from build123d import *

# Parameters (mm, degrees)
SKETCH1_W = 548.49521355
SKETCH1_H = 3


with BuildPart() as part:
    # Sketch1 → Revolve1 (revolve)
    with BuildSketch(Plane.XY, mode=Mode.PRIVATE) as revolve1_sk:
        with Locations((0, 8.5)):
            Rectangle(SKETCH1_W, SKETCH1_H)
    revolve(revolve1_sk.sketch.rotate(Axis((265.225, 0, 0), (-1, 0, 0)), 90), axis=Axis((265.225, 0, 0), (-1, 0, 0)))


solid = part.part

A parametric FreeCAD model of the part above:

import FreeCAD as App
import Part
import Sketcher
Q = App.Units.Quantity


def add_polygon(sketch, points):
    """Adds a closed chain of lines whose ends are joined by coincident constraints."""
    first, n = sketch.GeometryCount, len(points)
    for a, b in zip(points, points[1:] + points[:1]):
        sketch.addGeometry(Part.LineSegment(App.Vector(*a, 0), App.Vector(*b, 0)), False)
    for i in range(n):
        sketch.addConstraint(Sketcher.Constraint("Coincident", first + i, 2, first + (i + 1) % n, 1))

doc = App.newDocument("Part")
params = doc.addObject("Spreadsheet::Sheet", "Params")
for row, (alias, value) in enumerate([
    ("sketch1_height", "3 mm"),
    ("revolution_angle", "360 deg"),
], start=1):
    params.set(f"A{row}", alias)
    params.set(f"B{row}", "=" + value)
    params.setAlias(f"B{row}", alias)

body = doc.addObject("PartDesign::Body", "Body")

sketch1 = body.newObject("Sketcher::SketchObject", "Sketch")
sketch1.AttachmentSupport = (doc.getObject("XY_Plane"), [""])
sketch1.MapMode = "FlatFace"
add_polygon(sketch1, [(-274.247607, 10), (-274.247607, 7), (274.247607, 7), (274.247607, 10)])
sketch1.addConstraint([
    Sketcher.Constraint("Vertical", 0),
    Sketcher.Constraint("Horizontal", 1),
    Sketcher.Constraint("Vertical", 2),
    Sketcher.Constraint("Horizontal", 3),
    Sketcher.Constraint("DistanceY", 0, 2, 0, 1, Q("3 mm")),
    Sketcher.Constraint("DistanceY", -1, 1, 0, 2, Q("7 mm")),
    Sketcher.Constraint("DistanceX", 1, 1, 1, 2, Q("548.495214 mm")),
    Sketcher.Constraint("DistanceX", 0, 2, -1, 1, Q("274.247607 mm")),
])
sketch1.setExpression("Constraints[8]", "Params.sketch1_height")
revolution = body.newObject("PartDesign::Revolution", "Revolution")
revolution.Profile = sketch1
revolution.ReferenceAxis = (sketch1, ["H_Axis"])
revolution.setExpression("Angle", "Params.revolution_angle")

doc.recompute()
